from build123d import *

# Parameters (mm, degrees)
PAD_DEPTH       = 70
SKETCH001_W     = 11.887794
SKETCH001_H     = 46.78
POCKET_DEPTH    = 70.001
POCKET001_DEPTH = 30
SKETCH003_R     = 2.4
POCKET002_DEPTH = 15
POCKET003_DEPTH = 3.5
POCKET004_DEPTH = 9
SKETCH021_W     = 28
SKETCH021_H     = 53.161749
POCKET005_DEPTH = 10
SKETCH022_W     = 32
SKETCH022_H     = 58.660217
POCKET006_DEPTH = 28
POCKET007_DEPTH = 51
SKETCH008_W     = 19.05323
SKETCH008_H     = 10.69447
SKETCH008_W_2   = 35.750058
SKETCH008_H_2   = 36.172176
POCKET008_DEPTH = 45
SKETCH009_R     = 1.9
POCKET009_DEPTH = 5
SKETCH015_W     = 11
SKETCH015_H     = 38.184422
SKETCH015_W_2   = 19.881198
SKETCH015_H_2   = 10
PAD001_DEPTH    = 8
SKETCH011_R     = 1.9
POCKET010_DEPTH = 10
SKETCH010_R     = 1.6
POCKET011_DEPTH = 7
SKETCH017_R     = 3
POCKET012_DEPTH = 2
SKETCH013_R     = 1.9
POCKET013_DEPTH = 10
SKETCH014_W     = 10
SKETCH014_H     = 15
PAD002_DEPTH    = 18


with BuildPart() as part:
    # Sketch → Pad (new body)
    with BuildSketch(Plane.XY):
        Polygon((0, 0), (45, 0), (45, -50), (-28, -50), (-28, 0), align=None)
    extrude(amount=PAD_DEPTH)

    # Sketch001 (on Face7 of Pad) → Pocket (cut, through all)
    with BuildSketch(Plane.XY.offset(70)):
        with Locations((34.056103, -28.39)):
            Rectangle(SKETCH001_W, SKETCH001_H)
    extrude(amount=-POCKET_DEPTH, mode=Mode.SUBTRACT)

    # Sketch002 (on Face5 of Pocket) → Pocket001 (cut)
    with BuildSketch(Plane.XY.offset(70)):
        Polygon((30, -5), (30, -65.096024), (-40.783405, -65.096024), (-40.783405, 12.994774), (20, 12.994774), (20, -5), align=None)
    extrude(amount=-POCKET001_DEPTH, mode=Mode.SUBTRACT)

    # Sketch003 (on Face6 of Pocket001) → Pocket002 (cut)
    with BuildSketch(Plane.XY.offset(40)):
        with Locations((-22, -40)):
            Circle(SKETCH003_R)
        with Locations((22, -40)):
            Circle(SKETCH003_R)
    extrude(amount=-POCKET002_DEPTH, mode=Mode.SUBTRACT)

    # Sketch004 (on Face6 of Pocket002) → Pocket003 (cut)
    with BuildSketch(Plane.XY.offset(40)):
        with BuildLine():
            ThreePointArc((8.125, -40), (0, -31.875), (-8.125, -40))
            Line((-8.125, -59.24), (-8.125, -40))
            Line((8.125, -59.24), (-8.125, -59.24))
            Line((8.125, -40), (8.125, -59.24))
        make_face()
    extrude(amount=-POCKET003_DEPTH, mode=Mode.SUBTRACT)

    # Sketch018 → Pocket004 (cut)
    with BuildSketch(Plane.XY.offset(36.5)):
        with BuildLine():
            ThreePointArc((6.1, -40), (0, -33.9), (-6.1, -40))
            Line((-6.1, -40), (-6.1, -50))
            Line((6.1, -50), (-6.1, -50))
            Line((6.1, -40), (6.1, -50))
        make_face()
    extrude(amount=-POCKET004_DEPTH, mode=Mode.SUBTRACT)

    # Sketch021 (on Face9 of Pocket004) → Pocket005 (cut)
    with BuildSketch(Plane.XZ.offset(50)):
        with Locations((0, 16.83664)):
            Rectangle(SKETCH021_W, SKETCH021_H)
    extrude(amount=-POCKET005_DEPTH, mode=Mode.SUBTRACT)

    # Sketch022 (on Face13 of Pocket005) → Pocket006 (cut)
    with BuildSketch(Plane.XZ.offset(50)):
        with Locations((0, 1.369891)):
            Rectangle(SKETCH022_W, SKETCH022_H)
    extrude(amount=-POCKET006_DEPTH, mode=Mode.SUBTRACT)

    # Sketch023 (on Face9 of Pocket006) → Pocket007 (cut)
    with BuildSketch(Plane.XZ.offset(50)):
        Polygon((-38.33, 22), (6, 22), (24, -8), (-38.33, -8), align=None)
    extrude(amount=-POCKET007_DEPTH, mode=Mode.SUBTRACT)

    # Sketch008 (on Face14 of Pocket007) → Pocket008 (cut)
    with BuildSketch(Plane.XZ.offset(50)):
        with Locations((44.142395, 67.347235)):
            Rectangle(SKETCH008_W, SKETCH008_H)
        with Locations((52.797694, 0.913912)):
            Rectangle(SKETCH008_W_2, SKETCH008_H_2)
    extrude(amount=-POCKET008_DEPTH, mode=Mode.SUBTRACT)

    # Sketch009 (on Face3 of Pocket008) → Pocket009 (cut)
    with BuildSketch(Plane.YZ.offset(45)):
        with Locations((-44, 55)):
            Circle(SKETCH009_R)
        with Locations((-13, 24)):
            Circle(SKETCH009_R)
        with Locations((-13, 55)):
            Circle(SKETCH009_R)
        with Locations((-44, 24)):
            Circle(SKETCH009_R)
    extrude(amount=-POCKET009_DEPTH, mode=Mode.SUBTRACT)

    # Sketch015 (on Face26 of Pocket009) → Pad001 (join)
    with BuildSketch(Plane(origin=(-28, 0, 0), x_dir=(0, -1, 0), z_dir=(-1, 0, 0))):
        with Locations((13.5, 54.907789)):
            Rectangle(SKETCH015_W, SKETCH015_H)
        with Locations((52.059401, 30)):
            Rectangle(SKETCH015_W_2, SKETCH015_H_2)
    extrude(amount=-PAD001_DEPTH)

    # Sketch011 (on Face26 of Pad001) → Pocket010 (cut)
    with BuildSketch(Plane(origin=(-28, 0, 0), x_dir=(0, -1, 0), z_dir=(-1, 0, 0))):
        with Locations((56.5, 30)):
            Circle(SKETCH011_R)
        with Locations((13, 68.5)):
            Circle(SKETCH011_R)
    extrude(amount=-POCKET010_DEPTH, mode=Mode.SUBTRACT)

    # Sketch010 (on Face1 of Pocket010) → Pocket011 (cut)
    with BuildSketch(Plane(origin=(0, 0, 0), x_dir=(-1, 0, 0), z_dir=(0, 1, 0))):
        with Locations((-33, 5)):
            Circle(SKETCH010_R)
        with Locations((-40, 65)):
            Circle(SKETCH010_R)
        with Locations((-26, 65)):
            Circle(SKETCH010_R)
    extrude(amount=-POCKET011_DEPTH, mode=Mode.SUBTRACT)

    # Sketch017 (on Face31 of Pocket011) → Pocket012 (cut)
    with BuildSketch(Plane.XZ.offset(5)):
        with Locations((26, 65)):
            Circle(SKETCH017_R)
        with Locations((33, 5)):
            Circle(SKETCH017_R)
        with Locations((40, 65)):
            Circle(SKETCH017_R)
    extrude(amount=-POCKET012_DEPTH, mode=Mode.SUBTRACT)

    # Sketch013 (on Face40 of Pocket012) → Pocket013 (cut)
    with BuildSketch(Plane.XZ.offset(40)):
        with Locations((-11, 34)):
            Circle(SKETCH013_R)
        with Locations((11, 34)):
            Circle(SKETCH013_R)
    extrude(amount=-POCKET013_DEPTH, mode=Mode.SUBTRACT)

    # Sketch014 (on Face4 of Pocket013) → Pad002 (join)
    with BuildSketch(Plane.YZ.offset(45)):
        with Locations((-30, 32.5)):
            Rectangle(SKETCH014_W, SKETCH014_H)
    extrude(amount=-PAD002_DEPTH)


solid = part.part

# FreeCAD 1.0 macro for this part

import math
import FreeCAD as App
import Part
import Sketcher


def add_polygon(sketch, points):
    """Adds a closed chain of lines whose ends are joined by coincident constraints."""
    first, n = sketch.GeometryCount, len(points)
    for a, b in zip(points, points[1:] + points[:1]):
        sketch.addGeometry(Part.LineSegment(App.Vector(*a, 0), App.Vector(*b, 0)), False)
    for i in range(n):
        sketch.addConstraint(Sketcher.Constraint("Coincident", first + i, 2, first + (i + 1) % n, 1))

doc = App.newDocument("Part")
body = doc.addObject("PartDesign::Body", "Body")

sketch1 = body.newObject("Sketcher::SketchObject", "Sketch")
sketch1.AttachmentSupport = (doc.getObject("XY_Plane"), [""])
sketch1.MapMode = "FlatFace"
add_polygon(sketch1, [(45, 0), (-28, 0), (-28, -50), (45, -50)])
sketch1.addConstraint([
    Sketcher.Constraint("Horizontal", 0),
    Sketcher.Constraint("Vertical", 1),
    Sketcher.Constraint("Horizontal", 2),
    Sketcher.Constraint("Vertical", 3),
    Sketcher.Constraint("PointOnObject", 0, 2, -1),
    Sketcher.Constraint("DistanceX", 0, 2, 0, 1, 73.0),
    Sketcher.Constraint("DistanceY", 1, 2, 1, 1, 50.0),
    Sketcher.Constraint("DistanceX", 0, 2, -1, 1, 28.0),
])
pad1 = body.newObject("PartDesign::Pad", "Pad")
pad1.Profile = sketch1
pad1.Length = 70

sketch2 = body.newObject("Sketcher::SketchObject", "Sketch001")
sketch2.AttachmentSupport = (doc.getObject("XY_Plane"), [""])
sketch2.MapMode = "FlatFace"
sketch2.AttachmentOffset = App.Placement(App.Vector(0, 0, 70), App.Rotation())
add_polygon(sketch2, [(28.112206, -5), (28.112206, -51.78), (40, -51.78), (40, -5)])
sketch2.addConstraint([
    Sketcher.Constraint("Vertical", 0),
    Sketcher.Constraint("Horizontal", 1),
    Sketcher.Constraint("Vertical", 2),
    Sketcher.Constraint("Horizontal", 3),
    Sketcher.Constraint("DistanceX", -1, 1, 1, 2, 40.0),
    Sketcher.Constraint("DistanceY", 2, 2, -1, 1, 5.0),
    Sketcher.Constraint("DistanceY", 0, 2, 0, 1, 46.78),
    Sketcher.Constraint("DistanceX", 1, 1, 1, 2, 11.887794),
])
pocket1 = body.newObject("PartDesign::Pocket", "Pocket")
pocket1.Profile = sketch2
pocket1.Type = "ThroughAll"

sketch3 = body.newObject("Sketcher::SketchObject", "Sketch002")
sketch3.AttachmentSupport = (doc.getObject("XY_Plane"), [""])
sketch3.MapMode = "FlatFace"
sketch3.AttachmentOffset = App.Placement(App.Vector(0, 0, 70), App.Rotation())
add_polygon(sketch3, [(30, -65.096024), (30, -5), (20, -5), (20, 12.994774), (-40.783405, 12.994774), (-40.783405, -65.096024)])
sketch3.addConstraint([
    Sketcher.Constraint("Vertical", 0),
    Sketcher.Constraint("Horizontal", 1),
    Sketcher.Constraint("Vertical", 2),
    Sketcher.Constraint("Horizontal", 3),
    Sketcher.Constraint("Vertical", 4),
    Sketcher.Constraint("Horizontal", 5),
    Sketcher.Constraint("DistanceX", 1, 2, 1, 1, 10.0),
    Sketcher.Constraint("DistanceX", -1, 1, 0, 2, 30.0),
    Sketcher.Constraint("DistanceY", 0, 2, -1, 1, 5.0),
    Sketcher.Constraint("DistanceY", 4, 2, 4, 1, 78.090798),
    Sketcher.Constraint("DistanceX", 3, 2, 3, 1, 60.783405),
    Sketcher.Constraint("DistanceY", 0, 1, 0, 2, 60.096024),
])
pocket2 = body.newObject("PartDesign::Pocket", "Pocket001")
pocket2.Profile = sketch3
pocket2.Length = 30

sketch4 = body.newObject("Sketcher::SketchObject", "Sketch003")
sketch4.AttachmentSupport = (doc.getObject("XY_Plane"), [""])
sketch4.MapMode = "FlatFace"
sketch4.AttachmentOffset = App.Placement(App.Vector(0, 0, 40), App.Rotation())
sketch4.addGeometry([
    Part.Circle(App.Vector(-22, -40, 0), App.Vector(0, 0, 1), 2.4),
    Part.Circle(App.Vector(22, -40, 0), App.Vector(0, 0, 1), 2.4),
], False)
sketch4.addConstraint([
    Sketcher.Constraint("Equal", 0, 1),
    Sketcher.Constraint("Symmetric", 0, 3, 1, 3, -2),
    Sketcher.Constraint("Diameter", 0, 4.8),
    Sketcher.Constraint("DistanceX", 0, 3, -1, 1, 22.0),
    Sketcher.Constraint("DistanceY", 0, 3, -1, 1, 40.0),
])
pocket3 = body.newObject("PartDesign::Pocket", "Pocket002")
pocket3.Profile = sketch4
pocket3.Length = 15

sketch5 = body.newObject("Sketcher::SketchObject", "Sketch004")
sketch5.AttachmentSupport = (doc.getObject("XY_Plane"), [""])
sketch5.MapMode = "FlatFace"
sketch5.AttachmentOffset = App.Placement(App.Vector(0, 0, 40), App.Rotation())
sketch5.addGeometry([
    Part.ArcOfCircle(Part.Circle(App.Vector(0, -40, 0), App.Vector(0, 0, 1), 8.125), math.radians(0), math.radians(180)),
    Part.LineSegment(App.Vector(-8.125, -40, 0), App.Vector(-8.125, -59.24, 0)),
    Part.LineSegment(App.Vector(-8.125, -59.24, 0), App.Vector(8.125, -59.24, 0)),
    Part.LineSegment(App.Vector(8.125, -59.24, 0), App.Vector(8.125, -40, 0)),
], False)
sketch5.addConstraint([
    Sketcher.Constraint("Tangent", 0, 2, 1, 1),
    Sketcher.Constraint("Coincident", 1, 2, 2, 1),
    Sketcher.Constraint("Coincident", 2, 2, 3, 1),
    Sketcher.Constraint("Tangent", 3, 2, 0, 1),
    Sketcher.Constraint("Vertical", 1),
    Sketcher.Constraint("Horizontal", 2),
    Sketcher.Constraint("Vertical", 3),
    Sketcher.Constraint("PointOnObject", 0, 3, -2),
    Sketcher.Constraint("DistanceY", 0, 3, -1, 1, 40.0),
    Sketcher.Constraint("Radius", 0, 8.125),
    Sketcher.Constraint("DistanceY", 1, 2, 1, 1, 19.24),
])
pocket4 = body.newObject("PartDesign::Pocket", "Pocket003")
pocket4.Profile = sketch5
pocket4.Length = 3.5

sketch6 = body.newObject("Sketcher::SketchObject", "Sketch005")
sketch6.AttachmentSupport = (doc.getObject("XY_Plane"), [""])
sketch6.MapMode = "FlatFace"
sketch6.AttachmentOffset = App.Placement(App.Vector(0, 0, 36.5), App.Rotation())
sketch6.addGeometry([
    Part.ArcOfCircle(Part.Circle(App.Vector(0, -40, 0), App.Vector(0, 0, 1), 6.1), math.radians(0), math.radians(180)),
    Part.LineSegment(App.Vector(-6.1, -40, 0), App.Vector(-6.1, -50, 0)),
    Part.LineSegment(App.Vector(-6.1, -50, 0), App.Vector(6.1, -50, 0)),
    Part.LineSegment(App.Vector(6.1, -50, 0), App.Vector(6.1, -40, 0)),
], False)
sketch6.addConstraint([
    Sketcher.Constraint("Tangent", 0, 2, 1, 1),
    Sketcher.Constraint("Coincident", 1, 2, 2, 1),
    Sketcher.Constraint("Coincident", 2, 2, 3, 1),
    Sketcher.Constraint("Tangent", 3, 2, 0, 1),
    Sketcher.Constraint("Vertical", 1),
    Sketcher.Constraint("Horizontal", 2),
    Sketcher.Constraint("Vertical", 3),
    Sketcher.Constraint("PointOnObject", 0, 3, -2),
    Sketcher.Constraint("Radius", 0, 6.1),
    Sketcher.Constraint("DistanceY", 1, 2, 1, 1, 10.0),
    Sketcher.Constraint("DistanceY", 0, 3, -1, 1, 40.0),
])
pocket5 = body.newObject("PartDesign::Pocket", "Pocket004")
pocket5.Profile = sketch6
pocket5.Length = 9

sketch7 = body.newObject("Sketcher::SketchObject", "Sketch006")
sketch7.AttachmentSupport = (doc.getObject("XZ_Plane"), [""])
sketch7.MapMode = "FlatFace"
sketch7.AttachmentOffset = App.Placement(App.Vector(0, 0, 50), App.Rotation())
add_polygon(sketch7, [(-14, 43.417515), (-14, -9.744234), (14, -9.744234), (14, 43.417515)])
sketch7.addConstraint([
    Sketcher.Constraint("Vertical", 0),
    Sketcher.Constraint("Horizontal", 1),
    Sketcher.Constraint("Vertical", 2),
    Sketcher.Constraint("Horizontal", 3),
    Sketcher.Constraint("DistanceX", 1, 1, 1, 2, 28.0),
    Sketcher.Constraint("DistanceX", 0, 2, -1, 1, 14.0),
    Sketcher.Constraint("DistanceY", 0, 2, 0, 1, 53.161749),
    Sketcher.Constraint("DistanceY", 0, 2, -1, 1, 9.744234),
])
pocket6 = body.newObject("PartDesign::Pocket", "Pocket005")
pocket6.Profile = sketch7
pocket6.Length = 10

sketch8 = body.newObject("Sketcher::SketchObject", "Sketch007")
sketch8.AttachmentSupport = (doc.getObject("XZ_Plane"), [""])
sketch8.MapMode = "FlatFace"
sketch8.AttachmentOffset = App.Placement(App.Vector(0, 0, 50), App.Rotation())
add_polygon(sketch8, [(-16, 30.7), (-16, -27.960217), (16, -27.960217), (16, 30.7)])
sketch8.addConstraint([
    Sketcher.Constraint("Vertical", 0),
    Sketcher.Constraint("Horizontal", 1),
    Sketcher.Constraint("Vertical", 2),
    Sketcher.Constraint("Horizontal", 3),
    Sketcher.Constraint("DistanceX", 1, 1, 1, 2, 32.0),
    Sketcher.Constraint("DistanceX", 0, 2, -1, 1, 16.0),
    Sketcher.Constraint("DistanceY", -1, 1, 2, 2, 30.7),
    Sketcher.Constraint("DistanceY", 0, 2, 0, 1, 58.660217),
])
pocket7 = body.newObject("PartDesign::Pocket", "Pocket006")
pocket7.Profile = sketch8
pocket7.Length = 28

sketch9 = body.newObject("Sketcher::SketchObject", "Sketch008")
sketch9.AttachmentSupport = (doc.getObject("XZ_Plane"), [""])
sketch9.MapMode = "FlatFace"
sketch9.AttachmentOffset = App.Placement(App.Vector(0, 0, 50), App.Rotation())
add_polygon(sketch9, [(6, 22), (-38.33, 22), (-38.33, -8), (24, -8)])
sketch9.addConstraint([
    Sketcher.Constraint("Horizontal", 0),
    Sketcher.Constraint("Vertical", 1),
    Sketcher.Constraint("Horizontal", 2),
    Sketcher.Constraint("DistanceY", 1, 2, 1, 1, 30.0),
    Sketcher.Constraint("DistanceY", -1, 1, 0, 2, 22.0),
    Sketcher.Constraint("DistanceX", -1, 1, 2, 2, 24.0),
    Sketcher.Constraint("DistanceX", -1, 1, 3, 2, 6.0),
    Sketcher.Constraint("DistanceX", 0, 2, 0, 1, 44.33),
])
pocket8 = body.newObject("PartDesign::Pocket", "Pocket007")
pocket8.Profile = sketch9
pocket8.Length = 51

sketch10 = body.newObject("Sketcher::SketchObject", "Sketch009")
sketch10.AttachmentSupport = (doc.getObject("XZ_Plane"), [""])
sketch10.MapMode = "FlatFace"
sketch10.AttachmentOffset = App.Placement(App.Vector(0, 0, 50), App.Rotation())
add_polygon(sketch10, [(34.61578, 72.69447), (34.61578, 62), (53.66901, 62), (53.66901, 72.69447)])
add_polygon(sketch10, [(34.922665, 19), (34.922665, -17.172176), (70.672723, -17.172176), (70.672723, 19)])
sketch10.addConstraint([
    Sketcher.Constraint("Vertical", 0),
    Sketcher.Constraint("Horizontal", 1),
    Sketcher.Constraint("Vertical", 2),
    Sketcher.Constraint("Horizontal", 3),
    Sketcher.Constraint("Vertical", 4),
    Sketcher.Constraint("Horizontal", 5),
    Sketcher.Constraint("Vertical", 6),
    Sketcher.Constraint("Horizontal", 7),
    Sketcher.Constraint("DistanceY", -1, 1, 0, 2, 62.0),
    Sketcher.Constraint("DistanceY", -1, 1, 6, 2, 19.0),
    Sketcher.Constraint("DistanceX", 1, 1, 1, 2, 19.05323),
    Sketcher.Constraint("DistanceX", 5, 1, 5, 2, 35.750058),
    Sketcher.Constraint("DistanceY", 0, 2, 0, 1, 10.69447),
    Sketcher.Constraint("DistanceY", 4, 2, 4, 1, 36.172176),
    Sketcher.Constraint("DistanceX", -1, 1, 0, 2, 34.61578),
    Sketcher.Constraint("DistanceX", -1, 1, 4, 2, 34.922665),
])
pocket9 = body.newObject("PartDesign::Pocket", "Pocket008")
pocket9.Profile = sketch10
pocket9.Length = 45

sketch11 = body.newObject("Sketcher::SketchObject", "Sketch010")
sketch11.AttachmentSupport = (doc.getObject("YZ_Plane"), [""])
sketch11.MapMode = "FlatFace"
sketch11.AttachmentOffset = App.Placement(App.Vector(0, 0, 45), App.Rotation())
sketch11.addGeometry([
    Part.Circle(App.Vector(-44, 55, 0), App.Vector(0, 0, 1), 1.9),
    Part.Circle(App.Vector(-13, 24, 0), App.Vector(0, 0, 1), 1.9),
    Part.Circle(App.Vector(-13, 55, 0), App.Vector(0, 0, 1), 1.9),
    Part.Circle(App.Vector(-44, 24, 0), App.Vector(0, 0, 1), 1.9),
], False)
sketch11.addConstraint([
    Sketcher.Constraint("Equal", 0, 1),
    Sketcher.Constraint("Equal", 1, 2),
    Sketcher.Constraint("Equal", 2, 3),
    Sketcher.Constraint("Horizontal", 0, 3, 2, 3),
    Sketcher.Constraint("Horizontal", 1, 3, 3, 3),
    Sketcher.Constraint("Vertical", 1, 3, 2, 3),
    Sketcher.Constraint("Vertical", 0, 3, 3, 3),
    Sketcher.Constraint("Diameter", 0, 3.8),
    Sketcher.Constraint("DistanceX", 0, 3, -1, 1, 44.0),
    Sketcher.Constraint("DistanceY", -1, 1, 0, 3, 55.0),
    Sketcher.Constraint("DistanceX", 1, 3, -1, 1, 13.0),
    Sketcher.Constraint("DistanceY", -1, 1, 1, 3, 24.0),
])
pocket10 = body.newObject("PartDesign::Pocket", "Pocket009")
pocket10.Profile = sketch11
pocket10.Length = 5

sketch12 = body.newObject("Sketcher::SketchObject", "Sketch011")
sketch12.AttachmentSupport = (doc.getObject("YZ_Plane"), [""])
sketch12.MapMode = "FlatFace"
sketch12.AttachmentOffset = App.Placement(App.Vector(0, 0, -28), App.Rotation())
add_polygon(sketch12, [(-8, 74), (-8, 35.815578), (-19, 35.815578), (-19, 74)])
add_polygon(sketch12, [(-42.118802, 35), (-42.118802, 25), (-62, 25), (-62, 35)])
sketch12.addConstraint([
    Sketcher.Constraint("Vertical", 0),
    Sketcher.Constraint("Horizontal", 1),
    Sketcher.Constraint("Vertical", 2),
    Sketcher.Constraint("Horizontal", 3),
    Sketcher.Constraint("Vertical", 4),
    Sketcher.Constraint("Horizontal", 5),
    Sketcher.Constraint("Vertical", 6),
    Sketcher.Constraint("Horizontal", 7),
    Sketcher.Constraint("DistanceX", 1, 2, 1, 1, 11.0),
    Sketcher.Constraint("DistanceY", 4, 2, 4, 1, 10.0),
    Sketcher.Constraint("DistanceX", 0, 2, -1, 1, 8.0),
    Sketcher.Constraint("DistanceY", -1, 1, 2, 2, 74.0),
    Sketcher.Constraint("DistanceY", -1, 1, 4, 2, 25.0),
    Sketcher.Constraint("DistanceX", 5, 2, -1, 1, 62.0),
    Sketcher.Constraint("DistanceY", 0, 2, 0, 1, 38.184422),
    Sketcher.Constraint("DistanceX", 5, 2, 5, 1, 19.881198),
])
pad2 = body.newObject("PartDesign::Pad", "Pad001")
pad2.Profile = sketch12
pad2.Length = 8

sketch13 = body.newObject("Sketcher::SketchObject", "Sketch012")
sketch13.AttachmentSupport = (doc.getObject("YZ_Plane"), [""])
sketch13.MapMode = "FlatFace"
sketch13.AttachmentOffset = App.Placement(App.Vector(0, 0, -28), App.Rotation())
sketch13.addGeometry([
    Part.Circle(App.Vector(-56.5, 30, 0), App.Vector(0, 0, 1), 1.9),
    Part.Circle(App.Vector(-13, 68.5, 0), App.Vector(0, 0, 1), 1.9),
], False)
sketch13.addConstraint([
    Sketcher.Constraint("Equal", 0, 1),
    Sketcher.Constraint("Diameter", 0, 3.8),
    Sketcher.Constraint("DistanceY", -1, 1, 0, 3, 30.0),
    Sketcher.Constraint("DistanceX", 1, 3, -1, 1, 13.0),
    Sketcher.Constraint("DistanceX", 0, 3, -1, 1, 56.5),
    Sketcher.Constraint("DistanceY", -1, 1, 1, 3, 68.5),
])
pocket11 = body.newObject("PartDesign::Pocket", "Pocket010")
pocket11.Profile = sketch13
pocket11.Length = 10
pocket11.Reversed = True

sketch14 = body.newObject("Sketcher::SketchObject", "Sketch013")
sketch14.AttachmentSupport = (doc.getObject("XZ_Plane"), [""])
sketch14.MapMode = "FlatFace"
sketch14.addGeometry([
    Part.Circle(App.Vector(33, 5, 0), App.Vector(0, 0, 1), 1.6),
    Part.Circle(App.Vector(40, 65, 0), App.Vector(0, 0, 1), 1.6),
    Part.Circle(App.Vector(26, 65, 0), App.Vector(0, 0, 1), 1.6),
], False)
sketch14.addConstraint([
    Sketcher.Constraint("Equal", 0, 1),
    Sketcher.Constraint("Equal", 1, 2),
    Sketcher.Constraint("Horizontal", 1, 3, 2, 3),
    Sketcher.Constraint("Diameter", 0, 3.2),
    Sketcher.Constraint("DistanceX", -1, 1, 0, 3, 33.0),
    Sketcher.Constraint("DistanceY", -1, 1, 0, 3, 5.0),
    Sketcher.Constraint("DistanceX", -1, 1, 1, 3, 40.0),
    Sketcher.Constraint("DistanceY", -1, 1, 1, 3, 65.0),
    Sketcher.Constraint("DistanceX", -1, 1, 2, 3, 26.0),
])
pocket12 = body.newObject("PartDesign::Pocket", "Pocket011")
pocket12.Profile = sketch14
pocket12.Length = 7
pocket12.Reversed = True

sketch15 = body.newObject("Sketcher::SketchObject", "Sketch014")
sketch15.AttachmentSupport = (doc.getObject("XZ_Plane"), [""])
sketch15.MapMode = "FlatFace"
sketch15.AttachmentOffset = App.Placement(App.Vector(0, 0, 5), App.Rotation())
sketch15.addGeometry([
    Part.Circle(App.Vector(26, 65, 0), App.Vector(0, 0, 1), 3),
    Part.Circle(App.Vector(33, 5, 0), App.Vector(0, 0, 1), 3),
    Part.Circle(App.Vector(40, 65, 0), App.Vector(0, 0, 1), 3),
], False)
sketch15.addConstraint([
    Sketcher.Constraint("Equal", 0, 1),
    Sketcher.Constraint("Equal", 1, 2),
    Sketcher.Constraint("Horizontal", 0, 3, 2, 3),
    Sketcher.Constraint("Diameter", 0, 6.0),
    Sketcher.Constraint("DistanceX", -1, 1, 0, 3, 26.0),
    Sketcher.Constraint("DistanceY", -1, 1, 0, 3, 65.0),
    Sketcher.Constraint("DistanceX", -1, 1, 1, 3, 33.0),
    Sketcher.Constraint("DistanceY", -1, 1, 1, 3, 5.0),
    Sketcher.Constraint("DistanceX", -1, 1, 2, 3, 40.0),
])
pocket13 = body.newObject("PartDesign::Pocket", "Pocket012")
pocket13.Profile = sketch15
pocket13.Length = 2

sketch16 = body.newObject("Sketcher::SketchObject", "Sketch015")
sketch16.AttachmentSupport = (doc.getObject("XZ_Plane"), [""])
sketch16.MapMode = "FlatFace"
sketch16.AttachmentOffset = App.Placement(App.Vector(0, 0, 40), App.Rotation())
sketch16.addGeometry([
    Part.Circle(App.Vector(-11, 34, 0), App.Vector(0, 0, 1), 1.9),
    Part.Circle(App.Vector(11, 34, 0), App.Vector(0, 0, 1), 1.9),
], False)
sketch16.addConstraint([
    Sketcher.Constraint("Equal", 0, 1),
    Sketcher.Constraint("Symmetric", 0, 3, 1, 3, -2),
    Sketcher.Constraint("Diameter", 0, 3.8),
    Sketcher.Constraint("DistanceX", 0, 3, -1, 1, 11.0),
    Sketcher.Constraint("DistanceY", -1, 1, 0, 3, 34.0),
])
pocket14 = body.newObject("PartDesign::Pocket", "Pocket013")
pocket14.Profile = sketch16
pocket14.Length = 10

sketch17 = body.newObject("Sketcher::SketchObject", "Sketch016")
sketch17.AttachmentSupport = (doc.getObject("YZ_Plane"), [""])
sketch17.MapMode = "FlatFace"
sketch17.AttachmentOffset = App.Placement(App.Vector(0, 0, 45), App.Rotation())
add_polygon(sketch17, [(-35, 40), (-35, 25), (-25, 25), (-25, 40)])
sketch17.addConstraint([
    Sketcher.Constraint("Vertical", 0),
    Sketcher.Constraint("Horizontal", 1),
    Sketcher.Constraint("Vertical", 2),
    Sketcher.Constraint("Horizontal", 3),
    Sketcher.Constraint("DistanceX", 1, 1, 1, 2, 10.0),
    Sketcher.Constraint("DistanceY", 0, 2, 0, 1, 15.0),
    Sketcher.Constraint("DistanceX", 0, 2, -1, 1, 35.0),
    Sketcher.Constraint("DistanceY", -1, 1, 0, 2, 25.0),
])
pad3 = body.newObject("PartDesign::Pad", "Pad002")
pad3.Profile = sketch17
pad3.Length = 18
pad3.Reversed = True

doc.recompute()
